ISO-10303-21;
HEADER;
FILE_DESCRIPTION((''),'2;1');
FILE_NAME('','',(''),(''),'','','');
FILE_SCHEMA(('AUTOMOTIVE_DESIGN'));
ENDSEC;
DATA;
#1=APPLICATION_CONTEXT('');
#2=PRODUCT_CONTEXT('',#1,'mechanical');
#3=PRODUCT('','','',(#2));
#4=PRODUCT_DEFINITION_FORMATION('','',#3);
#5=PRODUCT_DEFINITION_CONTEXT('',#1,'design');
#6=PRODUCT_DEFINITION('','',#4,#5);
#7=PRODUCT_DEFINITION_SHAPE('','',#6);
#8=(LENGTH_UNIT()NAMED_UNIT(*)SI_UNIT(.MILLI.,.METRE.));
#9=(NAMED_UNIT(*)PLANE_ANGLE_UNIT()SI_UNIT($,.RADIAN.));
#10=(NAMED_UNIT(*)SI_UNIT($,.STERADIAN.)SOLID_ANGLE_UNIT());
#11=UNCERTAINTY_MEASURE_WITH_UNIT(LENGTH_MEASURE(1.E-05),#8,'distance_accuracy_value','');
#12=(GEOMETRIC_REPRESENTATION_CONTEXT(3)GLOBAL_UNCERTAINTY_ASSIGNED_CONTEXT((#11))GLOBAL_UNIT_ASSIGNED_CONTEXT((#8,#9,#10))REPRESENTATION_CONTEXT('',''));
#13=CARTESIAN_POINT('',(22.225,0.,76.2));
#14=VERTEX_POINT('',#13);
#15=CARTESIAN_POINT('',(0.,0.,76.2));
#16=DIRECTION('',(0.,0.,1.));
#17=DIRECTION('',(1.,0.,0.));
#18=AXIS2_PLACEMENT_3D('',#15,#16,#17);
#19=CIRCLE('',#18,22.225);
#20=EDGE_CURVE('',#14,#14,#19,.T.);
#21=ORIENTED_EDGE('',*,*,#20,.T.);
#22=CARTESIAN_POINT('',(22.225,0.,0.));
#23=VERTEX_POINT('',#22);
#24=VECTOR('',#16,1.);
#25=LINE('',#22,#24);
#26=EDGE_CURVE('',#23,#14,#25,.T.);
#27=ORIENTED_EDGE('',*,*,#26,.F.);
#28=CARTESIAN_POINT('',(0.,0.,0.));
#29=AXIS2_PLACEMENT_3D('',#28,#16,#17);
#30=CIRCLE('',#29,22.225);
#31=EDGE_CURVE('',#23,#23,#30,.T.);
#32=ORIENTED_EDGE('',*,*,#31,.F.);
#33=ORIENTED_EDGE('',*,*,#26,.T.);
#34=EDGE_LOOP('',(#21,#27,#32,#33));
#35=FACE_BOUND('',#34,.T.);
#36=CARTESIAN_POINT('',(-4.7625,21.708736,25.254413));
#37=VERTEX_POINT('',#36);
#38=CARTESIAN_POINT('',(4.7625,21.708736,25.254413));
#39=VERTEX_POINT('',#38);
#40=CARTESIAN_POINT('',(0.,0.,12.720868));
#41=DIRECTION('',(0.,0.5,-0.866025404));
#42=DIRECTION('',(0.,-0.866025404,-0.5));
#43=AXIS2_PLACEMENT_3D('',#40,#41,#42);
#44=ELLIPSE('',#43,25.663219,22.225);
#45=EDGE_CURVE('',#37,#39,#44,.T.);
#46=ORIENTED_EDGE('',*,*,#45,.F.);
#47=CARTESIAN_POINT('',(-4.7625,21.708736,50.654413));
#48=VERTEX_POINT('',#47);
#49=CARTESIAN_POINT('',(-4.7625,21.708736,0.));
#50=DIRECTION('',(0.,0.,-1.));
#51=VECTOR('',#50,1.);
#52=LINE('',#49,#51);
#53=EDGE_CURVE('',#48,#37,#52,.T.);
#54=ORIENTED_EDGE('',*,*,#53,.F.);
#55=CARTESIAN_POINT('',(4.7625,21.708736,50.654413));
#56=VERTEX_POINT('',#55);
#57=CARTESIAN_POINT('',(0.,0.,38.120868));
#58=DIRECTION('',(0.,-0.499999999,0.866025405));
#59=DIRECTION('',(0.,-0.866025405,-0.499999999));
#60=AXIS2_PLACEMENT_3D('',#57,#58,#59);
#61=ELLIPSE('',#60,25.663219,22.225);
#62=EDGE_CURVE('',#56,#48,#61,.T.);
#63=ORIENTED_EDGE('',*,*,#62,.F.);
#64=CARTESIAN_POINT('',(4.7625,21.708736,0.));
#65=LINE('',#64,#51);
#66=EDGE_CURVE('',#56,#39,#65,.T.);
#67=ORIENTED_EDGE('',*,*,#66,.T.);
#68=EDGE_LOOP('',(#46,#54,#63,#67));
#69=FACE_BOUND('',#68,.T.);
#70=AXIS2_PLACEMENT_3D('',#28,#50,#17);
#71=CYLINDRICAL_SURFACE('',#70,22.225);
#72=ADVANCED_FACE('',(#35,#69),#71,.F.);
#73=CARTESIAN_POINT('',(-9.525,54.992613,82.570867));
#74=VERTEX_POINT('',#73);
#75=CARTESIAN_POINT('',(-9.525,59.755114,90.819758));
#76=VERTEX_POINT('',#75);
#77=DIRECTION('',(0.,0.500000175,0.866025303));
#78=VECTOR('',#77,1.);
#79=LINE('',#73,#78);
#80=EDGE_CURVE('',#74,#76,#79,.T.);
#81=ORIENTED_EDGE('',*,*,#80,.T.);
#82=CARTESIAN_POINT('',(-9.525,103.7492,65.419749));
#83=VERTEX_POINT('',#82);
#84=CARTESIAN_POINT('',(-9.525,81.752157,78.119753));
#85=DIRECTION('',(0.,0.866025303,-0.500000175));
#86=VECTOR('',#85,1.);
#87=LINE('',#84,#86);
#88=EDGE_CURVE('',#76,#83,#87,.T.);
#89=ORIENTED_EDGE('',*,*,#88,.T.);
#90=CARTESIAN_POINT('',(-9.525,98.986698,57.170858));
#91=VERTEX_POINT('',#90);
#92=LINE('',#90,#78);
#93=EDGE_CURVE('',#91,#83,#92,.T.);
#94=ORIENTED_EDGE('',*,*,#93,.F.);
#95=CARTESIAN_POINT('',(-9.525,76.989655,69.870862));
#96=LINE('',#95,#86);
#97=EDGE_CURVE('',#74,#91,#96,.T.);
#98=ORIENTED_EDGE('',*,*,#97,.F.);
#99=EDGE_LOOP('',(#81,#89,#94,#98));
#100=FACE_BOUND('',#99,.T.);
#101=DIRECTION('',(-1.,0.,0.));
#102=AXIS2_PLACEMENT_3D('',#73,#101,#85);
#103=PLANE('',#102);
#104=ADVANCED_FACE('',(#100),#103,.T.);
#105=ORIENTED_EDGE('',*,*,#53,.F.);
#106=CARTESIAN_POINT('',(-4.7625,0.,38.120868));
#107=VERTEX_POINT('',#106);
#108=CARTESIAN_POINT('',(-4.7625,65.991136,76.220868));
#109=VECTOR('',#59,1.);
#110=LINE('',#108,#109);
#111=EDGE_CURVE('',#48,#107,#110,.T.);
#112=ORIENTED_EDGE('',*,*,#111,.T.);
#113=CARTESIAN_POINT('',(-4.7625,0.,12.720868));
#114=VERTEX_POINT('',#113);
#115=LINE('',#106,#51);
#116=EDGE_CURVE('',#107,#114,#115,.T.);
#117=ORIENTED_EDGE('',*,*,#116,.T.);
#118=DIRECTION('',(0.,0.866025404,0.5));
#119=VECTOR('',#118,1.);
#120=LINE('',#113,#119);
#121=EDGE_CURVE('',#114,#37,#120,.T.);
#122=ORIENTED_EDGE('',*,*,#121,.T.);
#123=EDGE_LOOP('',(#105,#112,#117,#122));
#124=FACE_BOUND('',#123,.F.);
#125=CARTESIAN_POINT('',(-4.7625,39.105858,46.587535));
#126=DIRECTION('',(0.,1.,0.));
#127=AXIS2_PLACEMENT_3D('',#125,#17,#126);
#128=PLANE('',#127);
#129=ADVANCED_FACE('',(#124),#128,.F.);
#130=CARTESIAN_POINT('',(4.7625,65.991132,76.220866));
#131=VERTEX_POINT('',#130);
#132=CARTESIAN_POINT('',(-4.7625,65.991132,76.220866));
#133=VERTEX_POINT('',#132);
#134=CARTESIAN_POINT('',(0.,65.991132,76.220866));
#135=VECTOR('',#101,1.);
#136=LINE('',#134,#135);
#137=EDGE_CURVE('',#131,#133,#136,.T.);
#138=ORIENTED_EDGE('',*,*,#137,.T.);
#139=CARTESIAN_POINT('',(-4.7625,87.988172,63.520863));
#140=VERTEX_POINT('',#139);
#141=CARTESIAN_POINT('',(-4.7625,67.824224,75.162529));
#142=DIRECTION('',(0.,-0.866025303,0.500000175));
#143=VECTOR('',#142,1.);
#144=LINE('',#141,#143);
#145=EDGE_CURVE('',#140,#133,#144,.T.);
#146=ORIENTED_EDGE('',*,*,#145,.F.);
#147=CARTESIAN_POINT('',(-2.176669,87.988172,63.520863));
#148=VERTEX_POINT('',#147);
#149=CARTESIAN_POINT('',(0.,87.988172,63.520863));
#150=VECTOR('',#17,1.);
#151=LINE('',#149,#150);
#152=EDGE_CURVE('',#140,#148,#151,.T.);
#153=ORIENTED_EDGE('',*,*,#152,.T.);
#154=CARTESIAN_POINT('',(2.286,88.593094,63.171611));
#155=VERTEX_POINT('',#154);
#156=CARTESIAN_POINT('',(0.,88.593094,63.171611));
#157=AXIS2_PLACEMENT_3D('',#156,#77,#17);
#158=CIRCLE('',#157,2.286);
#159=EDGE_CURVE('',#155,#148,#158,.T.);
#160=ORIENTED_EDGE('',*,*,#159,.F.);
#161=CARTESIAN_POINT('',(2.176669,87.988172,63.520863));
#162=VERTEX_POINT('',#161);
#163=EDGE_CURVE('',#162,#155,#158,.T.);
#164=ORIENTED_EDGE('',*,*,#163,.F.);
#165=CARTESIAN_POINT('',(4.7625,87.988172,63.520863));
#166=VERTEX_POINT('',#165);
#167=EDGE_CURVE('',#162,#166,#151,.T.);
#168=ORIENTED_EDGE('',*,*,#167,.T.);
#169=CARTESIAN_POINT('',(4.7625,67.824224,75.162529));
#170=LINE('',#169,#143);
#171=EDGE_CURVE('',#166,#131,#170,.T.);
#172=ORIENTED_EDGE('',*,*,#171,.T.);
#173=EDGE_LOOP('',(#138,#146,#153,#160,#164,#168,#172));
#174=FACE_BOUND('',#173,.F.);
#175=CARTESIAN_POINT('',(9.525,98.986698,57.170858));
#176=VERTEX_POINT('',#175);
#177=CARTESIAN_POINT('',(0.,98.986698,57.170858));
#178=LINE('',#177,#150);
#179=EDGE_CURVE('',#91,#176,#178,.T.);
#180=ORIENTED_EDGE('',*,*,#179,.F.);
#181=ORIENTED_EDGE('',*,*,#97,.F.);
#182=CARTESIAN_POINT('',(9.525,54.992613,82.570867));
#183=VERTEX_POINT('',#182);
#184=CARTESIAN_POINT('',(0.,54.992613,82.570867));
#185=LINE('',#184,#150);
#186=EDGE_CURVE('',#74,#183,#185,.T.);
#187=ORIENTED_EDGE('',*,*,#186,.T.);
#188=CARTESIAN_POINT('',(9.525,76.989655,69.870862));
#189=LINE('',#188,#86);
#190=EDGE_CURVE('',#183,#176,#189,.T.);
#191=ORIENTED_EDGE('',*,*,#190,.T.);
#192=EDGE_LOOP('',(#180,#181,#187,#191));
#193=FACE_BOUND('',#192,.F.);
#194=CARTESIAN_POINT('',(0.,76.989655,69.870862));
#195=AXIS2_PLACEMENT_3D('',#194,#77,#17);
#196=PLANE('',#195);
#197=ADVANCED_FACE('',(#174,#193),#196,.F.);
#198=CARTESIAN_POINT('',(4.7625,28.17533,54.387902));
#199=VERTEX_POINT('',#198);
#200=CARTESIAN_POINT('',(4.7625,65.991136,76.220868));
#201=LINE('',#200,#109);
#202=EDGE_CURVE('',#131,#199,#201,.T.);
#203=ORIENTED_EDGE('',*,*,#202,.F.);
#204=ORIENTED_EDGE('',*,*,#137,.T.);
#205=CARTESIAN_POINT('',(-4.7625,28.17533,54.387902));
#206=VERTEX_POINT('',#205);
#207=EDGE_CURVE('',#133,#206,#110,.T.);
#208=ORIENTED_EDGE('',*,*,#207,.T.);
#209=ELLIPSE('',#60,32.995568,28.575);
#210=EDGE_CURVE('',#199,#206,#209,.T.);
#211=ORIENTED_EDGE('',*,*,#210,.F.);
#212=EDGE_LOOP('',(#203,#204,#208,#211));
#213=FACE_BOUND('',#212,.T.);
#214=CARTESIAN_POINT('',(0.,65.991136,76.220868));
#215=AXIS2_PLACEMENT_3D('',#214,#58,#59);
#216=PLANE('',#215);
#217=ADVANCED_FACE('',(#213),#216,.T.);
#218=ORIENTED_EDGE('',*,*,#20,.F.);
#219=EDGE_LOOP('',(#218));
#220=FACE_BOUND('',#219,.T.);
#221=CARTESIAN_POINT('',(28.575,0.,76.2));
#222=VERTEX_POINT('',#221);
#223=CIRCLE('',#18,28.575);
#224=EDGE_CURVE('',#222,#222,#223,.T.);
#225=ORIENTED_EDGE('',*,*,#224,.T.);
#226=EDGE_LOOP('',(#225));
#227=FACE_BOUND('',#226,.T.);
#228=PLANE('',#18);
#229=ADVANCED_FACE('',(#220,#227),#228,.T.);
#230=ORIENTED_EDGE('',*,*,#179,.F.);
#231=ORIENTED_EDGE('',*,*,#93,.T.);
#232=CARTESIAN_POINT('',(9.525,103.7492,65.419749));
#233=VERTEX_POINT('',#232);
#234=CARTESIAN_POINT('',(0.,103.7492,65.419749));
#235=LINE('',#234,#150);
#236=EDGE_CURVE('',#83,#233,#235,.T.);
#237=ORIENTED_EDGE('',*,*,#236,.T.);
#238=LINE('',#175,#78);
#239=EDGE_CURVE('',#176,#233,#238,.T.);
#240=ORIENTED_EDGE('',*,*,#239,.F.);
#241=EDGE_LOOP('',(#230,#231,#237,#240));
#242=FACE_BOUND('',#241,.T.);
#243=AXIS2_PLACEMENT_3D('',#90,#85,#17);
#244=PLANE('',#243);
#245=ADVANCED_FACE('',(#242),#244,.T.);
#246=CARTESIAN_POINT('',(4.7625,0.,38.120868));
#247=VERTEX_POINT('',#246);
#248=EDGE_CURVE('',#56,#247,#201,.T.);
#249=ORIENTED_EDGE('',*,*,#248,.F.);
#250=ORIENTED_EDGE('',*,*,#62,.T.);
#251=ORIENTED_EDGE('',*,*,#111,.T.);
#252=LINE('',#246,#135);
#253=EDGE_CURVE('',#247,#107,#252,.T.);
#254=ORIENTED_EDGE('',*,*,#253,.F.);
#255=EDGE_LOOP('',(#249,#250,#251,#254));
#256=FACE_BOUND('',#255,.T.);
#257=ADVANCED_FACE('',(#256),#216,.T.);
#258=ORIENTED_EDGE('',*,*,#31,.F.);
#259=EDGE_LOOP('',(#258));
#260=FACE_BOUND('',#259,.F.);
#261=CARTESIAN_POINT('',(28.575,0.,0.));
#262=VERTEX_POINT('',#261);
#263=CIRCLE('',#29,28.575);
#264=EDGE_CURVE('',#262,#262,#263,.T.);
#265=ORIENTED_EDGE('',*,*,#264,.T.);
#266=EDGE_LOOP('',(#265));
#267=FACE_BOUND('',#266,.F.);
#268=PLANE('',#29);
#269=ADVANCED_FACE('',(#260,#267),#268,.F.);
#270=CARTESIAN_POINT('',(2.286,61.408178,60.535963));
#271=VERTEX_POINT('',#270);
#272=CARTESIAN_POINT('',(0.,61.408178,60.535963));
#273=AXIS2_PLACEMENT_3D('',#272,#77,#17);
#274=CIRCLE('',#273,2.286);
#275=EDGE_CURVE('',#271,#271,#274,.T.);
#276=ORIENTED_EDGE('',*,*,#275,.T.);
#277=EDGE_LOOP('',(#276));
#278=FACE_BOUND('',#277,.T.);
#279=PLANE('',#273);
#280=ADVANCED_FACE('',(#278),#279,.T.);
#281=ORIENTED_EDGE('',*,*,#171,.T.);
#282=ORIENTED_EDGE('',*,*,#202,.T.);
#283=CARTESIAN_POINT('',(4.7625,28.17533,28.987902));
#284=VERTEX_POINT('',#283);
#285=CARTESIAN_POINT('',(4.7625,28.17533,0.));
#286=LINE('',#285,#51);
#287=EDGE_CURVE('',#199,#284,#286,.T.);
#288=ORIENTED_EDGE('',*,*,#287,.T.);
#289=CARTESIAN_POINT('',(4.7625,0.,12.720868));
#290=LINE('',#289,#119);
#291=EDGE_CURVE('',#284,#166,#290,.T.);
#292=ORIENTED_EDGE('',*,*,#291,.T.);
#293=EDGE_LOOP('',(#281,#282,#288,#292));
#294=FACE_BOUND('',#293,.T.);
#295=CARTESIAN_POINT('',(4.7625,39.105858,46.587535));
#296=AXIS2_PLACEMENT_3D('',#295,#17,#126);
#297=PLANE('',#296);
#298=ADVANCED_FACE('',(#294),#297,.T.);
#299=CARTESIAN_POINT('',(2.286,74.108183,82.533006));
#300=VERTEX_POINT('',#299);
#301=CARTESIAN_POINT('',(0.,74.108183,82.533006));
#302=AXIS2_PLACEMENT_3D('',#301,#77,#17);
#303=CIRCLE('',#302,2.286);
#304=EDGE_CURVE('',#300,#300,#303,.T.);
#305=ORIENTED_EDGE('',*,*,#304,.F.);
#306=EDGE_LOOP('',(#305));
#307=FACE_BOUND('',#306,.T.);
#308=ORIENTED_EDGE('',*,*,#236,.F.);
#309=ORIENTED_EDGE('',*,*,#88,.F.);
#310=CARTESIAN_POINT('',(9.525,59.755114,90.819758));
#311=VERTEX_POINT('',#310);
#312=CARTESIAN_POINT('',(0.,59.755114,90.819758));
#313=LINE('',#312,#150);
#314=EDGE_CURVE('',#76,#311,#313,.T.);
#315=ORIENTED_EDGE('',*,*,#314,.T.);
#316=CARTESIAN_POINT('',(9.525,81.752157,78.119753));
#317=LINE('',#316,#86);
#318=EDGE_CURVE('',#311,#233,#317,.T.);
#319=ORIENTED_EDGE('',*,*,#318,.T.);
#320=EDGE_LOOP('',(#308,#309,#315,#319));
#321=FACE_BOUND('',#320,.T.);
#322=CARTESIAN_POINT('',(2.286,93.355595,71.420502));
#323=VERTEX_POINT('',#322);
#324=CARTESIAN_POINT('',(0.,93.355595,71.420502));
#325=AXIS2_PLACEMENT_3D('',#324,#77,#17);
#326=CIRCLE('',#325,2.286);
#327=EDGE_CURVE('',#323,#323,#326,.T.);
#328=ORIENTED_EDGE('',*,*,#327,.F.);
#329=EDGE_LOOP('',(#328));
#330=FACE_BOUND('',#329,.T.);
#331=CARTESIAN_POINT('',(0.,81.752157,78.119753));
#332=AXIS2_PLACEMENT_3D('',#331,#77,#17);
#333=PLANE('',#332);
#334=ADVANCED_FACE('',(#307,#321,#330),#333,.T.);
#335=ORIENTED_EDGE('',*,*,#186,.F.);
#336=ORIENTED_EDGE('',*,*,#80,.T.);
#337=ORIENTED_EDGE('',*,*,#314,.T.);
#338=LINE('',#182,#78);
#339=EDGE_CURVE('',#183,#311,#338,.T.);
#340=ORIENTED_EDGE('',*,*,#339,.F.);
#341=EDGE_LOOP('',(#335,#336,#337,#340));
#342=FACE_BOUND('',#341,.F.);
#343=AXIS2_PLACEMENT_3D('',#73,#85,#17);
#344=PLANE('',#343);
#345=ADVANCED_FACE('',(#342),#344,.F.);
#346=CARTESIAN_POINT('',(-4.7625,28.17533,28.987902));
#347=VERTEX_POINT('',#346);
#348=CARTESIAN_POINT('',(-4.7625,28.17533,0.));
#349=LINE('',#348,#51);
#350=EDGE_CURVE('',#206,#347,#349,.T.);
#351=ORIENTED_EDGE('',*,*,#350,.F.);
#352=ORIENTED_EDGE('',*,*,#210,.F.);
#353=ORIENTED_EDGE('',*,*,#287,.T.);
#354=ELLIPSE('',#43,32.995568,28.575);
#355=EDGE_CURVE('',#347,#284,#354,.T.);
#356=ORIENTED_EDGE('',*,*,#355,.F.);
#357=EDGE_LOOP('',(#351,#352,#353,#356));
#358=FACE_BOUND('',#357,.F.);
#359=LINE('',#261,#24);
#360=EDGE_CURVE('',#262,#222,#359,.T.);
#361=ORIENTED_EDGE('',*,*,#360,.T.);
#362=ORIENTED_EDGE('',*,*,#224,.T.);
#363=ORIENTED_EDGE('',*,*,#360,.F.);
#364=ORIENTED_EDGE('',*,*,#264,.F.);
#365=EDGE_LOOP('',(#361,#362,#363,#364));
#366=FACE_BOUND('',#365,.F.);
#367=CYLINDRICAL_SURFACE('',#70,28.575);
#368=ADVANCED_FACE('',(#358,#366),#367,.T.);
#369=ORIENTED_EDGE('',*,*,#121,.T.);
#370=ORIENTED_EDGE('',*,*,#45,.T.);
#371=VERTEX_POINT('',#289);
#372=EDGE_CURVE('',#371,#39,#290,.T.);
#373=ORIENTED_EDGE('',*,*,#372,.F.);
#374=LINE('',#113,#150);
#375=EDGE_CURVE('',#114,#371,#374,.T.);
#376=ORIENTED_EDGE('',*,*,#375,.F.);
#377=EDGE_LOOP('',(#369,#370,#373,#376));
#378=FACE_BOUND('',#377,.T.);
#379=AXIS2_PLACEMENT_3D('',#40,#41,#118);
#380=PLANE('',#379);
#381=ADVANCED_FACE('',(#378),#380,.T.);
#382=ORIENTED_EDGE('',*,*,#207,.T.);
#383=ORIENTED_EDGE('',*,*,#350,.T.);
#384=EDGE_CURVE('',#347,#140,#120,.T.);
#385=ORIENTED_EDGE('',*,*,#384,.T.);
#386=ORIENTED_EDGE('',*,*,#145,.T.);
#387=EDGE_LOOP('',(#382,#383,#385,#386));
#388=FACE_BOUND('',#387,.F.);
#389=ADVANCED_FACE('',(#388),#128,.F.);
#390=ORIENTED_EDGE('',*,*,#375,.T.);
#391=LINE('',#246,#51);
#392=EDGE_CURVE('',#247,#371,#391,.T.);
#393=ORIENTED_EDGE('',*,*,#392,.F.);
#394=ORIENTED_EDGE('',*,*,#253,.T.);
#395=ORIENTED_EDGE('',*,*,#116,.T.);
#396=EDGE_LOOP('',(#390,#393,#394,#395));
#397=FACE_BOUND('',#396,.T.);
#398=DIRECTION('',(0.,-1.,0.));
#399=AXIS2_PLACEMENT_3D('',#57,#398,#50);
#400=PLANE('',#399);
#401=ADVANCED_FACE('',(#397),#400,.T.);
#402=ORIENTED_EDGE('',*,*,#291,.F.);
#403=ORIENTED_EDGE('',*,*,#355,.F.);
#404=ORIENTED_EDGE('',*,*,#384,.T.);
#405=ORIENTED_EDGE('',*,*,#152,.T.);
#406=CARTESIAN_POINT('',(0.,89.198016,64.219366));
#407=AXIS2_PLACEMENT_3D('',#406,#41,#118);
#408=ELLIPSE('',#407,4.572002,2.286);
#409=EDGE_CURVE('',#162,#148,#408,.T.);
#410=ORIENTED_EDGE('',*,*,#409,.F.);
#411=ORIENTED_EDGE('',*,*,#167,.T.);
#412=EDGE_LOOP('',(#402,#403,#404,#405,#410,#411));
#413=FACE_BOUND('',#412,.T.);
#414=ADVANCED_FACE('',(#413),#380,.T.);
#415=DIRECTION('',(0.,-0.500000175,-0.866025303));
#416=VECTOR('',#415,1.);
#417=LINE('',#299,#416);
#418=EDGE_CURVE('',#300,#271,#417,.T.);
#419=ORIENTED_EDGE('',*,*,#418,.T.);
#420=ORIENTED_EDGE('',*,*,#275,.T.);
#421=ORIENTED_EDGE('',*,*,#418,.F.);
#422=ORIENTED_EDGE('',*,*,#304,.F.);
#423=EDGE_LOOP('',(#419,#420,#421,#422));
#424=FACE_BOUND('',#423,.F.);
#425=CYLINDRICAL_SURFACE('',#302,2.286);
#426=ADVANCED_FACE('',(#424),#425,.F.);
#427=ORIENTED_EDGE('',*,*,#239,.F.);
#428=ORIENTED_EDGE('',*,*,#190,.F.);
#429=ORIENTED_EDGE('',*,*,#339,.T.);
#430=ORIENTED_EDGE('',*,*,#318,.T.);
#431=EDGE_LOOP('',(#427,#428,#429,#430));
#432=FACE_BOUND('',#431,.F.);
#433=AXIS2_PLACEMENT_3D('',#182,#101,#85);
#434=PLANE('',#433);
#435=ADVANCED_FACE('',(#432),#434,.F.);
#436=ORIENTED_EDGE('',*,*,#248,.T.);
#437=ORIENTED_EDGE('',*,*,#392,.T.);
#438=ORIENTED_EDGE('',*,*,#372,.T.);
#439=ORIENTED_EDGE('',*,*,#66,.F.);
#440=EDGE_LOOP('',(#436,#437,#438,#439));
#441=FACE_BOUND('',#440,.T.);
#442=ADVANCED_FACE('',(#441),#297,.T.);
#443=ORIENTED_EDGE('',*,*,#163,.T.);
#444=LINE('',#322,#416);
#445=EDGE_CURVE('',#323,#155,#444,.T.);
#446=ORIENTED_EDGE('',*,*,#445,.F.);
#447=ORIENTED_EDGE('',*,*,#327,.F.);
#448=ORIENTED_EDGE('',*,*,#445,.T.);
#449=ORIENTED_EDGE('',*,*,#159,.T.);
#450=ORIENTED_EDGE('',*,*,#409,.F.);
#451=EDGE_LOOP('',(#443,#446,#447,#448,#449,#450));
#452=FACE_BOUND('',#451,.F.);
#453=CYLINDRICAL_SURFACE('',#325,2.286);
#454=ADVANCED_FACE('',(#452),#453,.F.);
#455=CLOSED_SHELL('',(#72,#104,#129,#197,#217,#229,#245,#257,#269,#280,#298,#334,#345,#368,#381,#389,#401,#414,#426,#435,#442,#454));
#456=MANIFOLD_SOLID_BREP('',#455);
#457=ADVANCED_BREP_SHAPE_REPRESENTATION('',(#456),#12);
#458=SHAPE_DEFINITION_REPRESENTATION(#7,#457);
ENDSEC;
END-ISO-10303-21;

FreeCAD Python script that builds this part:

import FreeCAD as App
import Part
import Sketcher

V = App.Vector
Q = App.Units.Quantity


def add_polygon(sketch, points):
    """Adds a closed chain of lines whose ends are joined by coincident constraints."""
    first, n = sketch.GeometryCount, len(points)
    for a, b in zip(points, points[1:] + points[:1]):
        sketch.addGeometry(Part.LineSegment(App.Vector(*a, 0), App.Vector(*b, 0)), False)
    for i in range(n):
        sketch.addConstraint(Sketcher.Constraint("Coincident", first + i, 2, first + (i + 1) % n, 1))

doc = App.newDocument("Part")
body = doc.addObject("PartDesign::Body", "Body")

sketch1 = body.newObject("Sketcher::SketchObject", "Sketch")
sketch1.AttachmentSupport = (doc.getObject("XY_Plane"), [""])
sketch1.MapMode = "FlatFace"
sketch1.addGeometry(Part.Circle(V(0, 0, 0), V(0, 0, 1), 29), False)
sketch1.addGeometry(Part.Circle(V(0, 0, 0), V(0, 0, 1), 22), False)
sketch1.addConstraint(Sketcher.Constraint("Coincident", 0, 3, -1, 1))
sketch1.addConstraint(Sketcher.Constraint("Coincident", 1, 3, -1, 1))
sketch1.addConstraint(Sketcher.Constraint("Diameter", 0, Q("2.25 in")))
sketch1.addConstraint(Sketcher.Constraint("Diameter", 1, Q("1.75 in")))
pad1 = body.newObject("PartDesign::Pad", "Pad")
pad1.Profile = sketch1
pad1.Length = Q("3 in")

sketch2 = body.newObject("Sketcher::SketchObject", "Sketch001")
sketch2.AttachmentSupport = (doc.getObject("YZ_Plane"), [""])
sketch2.MapMode = "FlatFace"
add_polygon(sketch2, [(0, 38), (0, 13), (88, 64), (66, 76)])
sketch2.addConstraint(Sketcher.Constraint("Vertical", 0))
sketch2.addConstraint(Sketcher.Constraint("PointOnObject", 0, 2, -2))
sketch2.addConstraint(Sketcher.Constraint("Parallel", 1, 3))
sketch2.addConstraint(Sketcher.Constraint("DistanceY", 0, 2, 0, 1, Q("1 in")))
sketch2.addConstraint(Sketcher.Constraint("Distance", 1, Q("4 in")))
sketch2.addConstraint(Sketcher.Constraint("Distance", 2, Q("1 in")))
sketch2.addConstraint(Sketcher.Constraint("Distance", 3, Q("3 in")))
sketch2.addConstraint(Sketcher.Constraint("DistanceY", -1, 1, 3, 2, Q("38.120868 mm")))
pad2 = body.newObject("PartDesign::Pad", "Pad001")
pad2.Profile = sketch2
pad2.Length = Q("0.375 in")
pad2.Midplane = True

sketch3 = body.newObject("Sketcher::SketchObject", "Sketch002")
sketch3.Placement = App.Placement(V(0, 49.502388, 85.740651), App.Rotation(V(1, 0, 0), V(0, 0.866025303, -0.500000175), V(0, 0.500000175, 0.866025303), "ZXY"))
add_polygon(sketch3, [(-10, 57), (-10, 6), (10, 6), (10, 57)])
sketch3.addConstraint(Sketcher.Constraint("Vertical", 0))
sketch3.addConstraint(Sketcher.Constraint("Horizontal", 1))
sketch3.addConstraint(Sketcher.Constraint("Vertical", 2))
sketch3.addConstraint(Sketcher.Constraint("Horizontal", 3))
sketch3.addConstraint(Sketcher.Constraint("DistanceY", 0, 2, 0, 1, Q("2 in")))
sketch3.addConstraint(Sketcher.Constraint("DistanceX", 1, 1, 1, 2, Q("0.75 in")))
sketch3.addConstraint(Sketcher.Constraint("DistanceX", 0, 2, -1, 1, Q("0.375 in")))
sketch3.addConstraint(Sketcher.Constraint("DistanceY", -1, 1, 0, 2, Q("6.339566 mm")))
pad3 = body.newObject("PartDesign::Pad", "Pad002")
pad3.Profile = sketch3
pad3.Length = Q("0.375 in")

sketch4 = body.newObject("Sketcher::SketchObject", "Sketch003")
sketch4.Placement = App.Placement(V(0, 54.264888, 93.989543), App.Rotation(V(1, 0, 0), V(0, 0.866025303, -0.500000175), V(0, 0.500000175, 0.866025303), "ZXY"))
sketch4.addGeometry(Part.Circle(V(0, 22.9, 0), V(0, 0, 1), 2.3), False)
sketch4.addGeometry(Part.Circle(V(0, 45.1, 0), V(0, 0, 1), 2.3), False)
sketch4.addConstraint(Sketcher.Constraint("Equal", 0, 1))
sketch4.addConstraint(Sketcher.Constraint("PointOnObject", 0, 3, -2))
sketch4.addConstraint(Sketcher.Constraint("PointOnObject", 1, 3, -2))
sketch4.addConstraint(Sketcher.Constraint("Diameter", 0, Q("0.18 in")))
sketch4.addConstraint(Sketcher.Constraint("DistanceY", 0, 3, 1, 3, Q("0.875 in")))
sketch4.addConstraint(Sketcher.Constraint("DistanceY", -1, 1, 0, 3, Q("22.913066 mm")))
pocket1 = body.newObject("PartDesign::Pocket", "Pocket")
pocket1.Profile = sketch4
pocket1.Length = Q("1 in")

doc.recompute()
